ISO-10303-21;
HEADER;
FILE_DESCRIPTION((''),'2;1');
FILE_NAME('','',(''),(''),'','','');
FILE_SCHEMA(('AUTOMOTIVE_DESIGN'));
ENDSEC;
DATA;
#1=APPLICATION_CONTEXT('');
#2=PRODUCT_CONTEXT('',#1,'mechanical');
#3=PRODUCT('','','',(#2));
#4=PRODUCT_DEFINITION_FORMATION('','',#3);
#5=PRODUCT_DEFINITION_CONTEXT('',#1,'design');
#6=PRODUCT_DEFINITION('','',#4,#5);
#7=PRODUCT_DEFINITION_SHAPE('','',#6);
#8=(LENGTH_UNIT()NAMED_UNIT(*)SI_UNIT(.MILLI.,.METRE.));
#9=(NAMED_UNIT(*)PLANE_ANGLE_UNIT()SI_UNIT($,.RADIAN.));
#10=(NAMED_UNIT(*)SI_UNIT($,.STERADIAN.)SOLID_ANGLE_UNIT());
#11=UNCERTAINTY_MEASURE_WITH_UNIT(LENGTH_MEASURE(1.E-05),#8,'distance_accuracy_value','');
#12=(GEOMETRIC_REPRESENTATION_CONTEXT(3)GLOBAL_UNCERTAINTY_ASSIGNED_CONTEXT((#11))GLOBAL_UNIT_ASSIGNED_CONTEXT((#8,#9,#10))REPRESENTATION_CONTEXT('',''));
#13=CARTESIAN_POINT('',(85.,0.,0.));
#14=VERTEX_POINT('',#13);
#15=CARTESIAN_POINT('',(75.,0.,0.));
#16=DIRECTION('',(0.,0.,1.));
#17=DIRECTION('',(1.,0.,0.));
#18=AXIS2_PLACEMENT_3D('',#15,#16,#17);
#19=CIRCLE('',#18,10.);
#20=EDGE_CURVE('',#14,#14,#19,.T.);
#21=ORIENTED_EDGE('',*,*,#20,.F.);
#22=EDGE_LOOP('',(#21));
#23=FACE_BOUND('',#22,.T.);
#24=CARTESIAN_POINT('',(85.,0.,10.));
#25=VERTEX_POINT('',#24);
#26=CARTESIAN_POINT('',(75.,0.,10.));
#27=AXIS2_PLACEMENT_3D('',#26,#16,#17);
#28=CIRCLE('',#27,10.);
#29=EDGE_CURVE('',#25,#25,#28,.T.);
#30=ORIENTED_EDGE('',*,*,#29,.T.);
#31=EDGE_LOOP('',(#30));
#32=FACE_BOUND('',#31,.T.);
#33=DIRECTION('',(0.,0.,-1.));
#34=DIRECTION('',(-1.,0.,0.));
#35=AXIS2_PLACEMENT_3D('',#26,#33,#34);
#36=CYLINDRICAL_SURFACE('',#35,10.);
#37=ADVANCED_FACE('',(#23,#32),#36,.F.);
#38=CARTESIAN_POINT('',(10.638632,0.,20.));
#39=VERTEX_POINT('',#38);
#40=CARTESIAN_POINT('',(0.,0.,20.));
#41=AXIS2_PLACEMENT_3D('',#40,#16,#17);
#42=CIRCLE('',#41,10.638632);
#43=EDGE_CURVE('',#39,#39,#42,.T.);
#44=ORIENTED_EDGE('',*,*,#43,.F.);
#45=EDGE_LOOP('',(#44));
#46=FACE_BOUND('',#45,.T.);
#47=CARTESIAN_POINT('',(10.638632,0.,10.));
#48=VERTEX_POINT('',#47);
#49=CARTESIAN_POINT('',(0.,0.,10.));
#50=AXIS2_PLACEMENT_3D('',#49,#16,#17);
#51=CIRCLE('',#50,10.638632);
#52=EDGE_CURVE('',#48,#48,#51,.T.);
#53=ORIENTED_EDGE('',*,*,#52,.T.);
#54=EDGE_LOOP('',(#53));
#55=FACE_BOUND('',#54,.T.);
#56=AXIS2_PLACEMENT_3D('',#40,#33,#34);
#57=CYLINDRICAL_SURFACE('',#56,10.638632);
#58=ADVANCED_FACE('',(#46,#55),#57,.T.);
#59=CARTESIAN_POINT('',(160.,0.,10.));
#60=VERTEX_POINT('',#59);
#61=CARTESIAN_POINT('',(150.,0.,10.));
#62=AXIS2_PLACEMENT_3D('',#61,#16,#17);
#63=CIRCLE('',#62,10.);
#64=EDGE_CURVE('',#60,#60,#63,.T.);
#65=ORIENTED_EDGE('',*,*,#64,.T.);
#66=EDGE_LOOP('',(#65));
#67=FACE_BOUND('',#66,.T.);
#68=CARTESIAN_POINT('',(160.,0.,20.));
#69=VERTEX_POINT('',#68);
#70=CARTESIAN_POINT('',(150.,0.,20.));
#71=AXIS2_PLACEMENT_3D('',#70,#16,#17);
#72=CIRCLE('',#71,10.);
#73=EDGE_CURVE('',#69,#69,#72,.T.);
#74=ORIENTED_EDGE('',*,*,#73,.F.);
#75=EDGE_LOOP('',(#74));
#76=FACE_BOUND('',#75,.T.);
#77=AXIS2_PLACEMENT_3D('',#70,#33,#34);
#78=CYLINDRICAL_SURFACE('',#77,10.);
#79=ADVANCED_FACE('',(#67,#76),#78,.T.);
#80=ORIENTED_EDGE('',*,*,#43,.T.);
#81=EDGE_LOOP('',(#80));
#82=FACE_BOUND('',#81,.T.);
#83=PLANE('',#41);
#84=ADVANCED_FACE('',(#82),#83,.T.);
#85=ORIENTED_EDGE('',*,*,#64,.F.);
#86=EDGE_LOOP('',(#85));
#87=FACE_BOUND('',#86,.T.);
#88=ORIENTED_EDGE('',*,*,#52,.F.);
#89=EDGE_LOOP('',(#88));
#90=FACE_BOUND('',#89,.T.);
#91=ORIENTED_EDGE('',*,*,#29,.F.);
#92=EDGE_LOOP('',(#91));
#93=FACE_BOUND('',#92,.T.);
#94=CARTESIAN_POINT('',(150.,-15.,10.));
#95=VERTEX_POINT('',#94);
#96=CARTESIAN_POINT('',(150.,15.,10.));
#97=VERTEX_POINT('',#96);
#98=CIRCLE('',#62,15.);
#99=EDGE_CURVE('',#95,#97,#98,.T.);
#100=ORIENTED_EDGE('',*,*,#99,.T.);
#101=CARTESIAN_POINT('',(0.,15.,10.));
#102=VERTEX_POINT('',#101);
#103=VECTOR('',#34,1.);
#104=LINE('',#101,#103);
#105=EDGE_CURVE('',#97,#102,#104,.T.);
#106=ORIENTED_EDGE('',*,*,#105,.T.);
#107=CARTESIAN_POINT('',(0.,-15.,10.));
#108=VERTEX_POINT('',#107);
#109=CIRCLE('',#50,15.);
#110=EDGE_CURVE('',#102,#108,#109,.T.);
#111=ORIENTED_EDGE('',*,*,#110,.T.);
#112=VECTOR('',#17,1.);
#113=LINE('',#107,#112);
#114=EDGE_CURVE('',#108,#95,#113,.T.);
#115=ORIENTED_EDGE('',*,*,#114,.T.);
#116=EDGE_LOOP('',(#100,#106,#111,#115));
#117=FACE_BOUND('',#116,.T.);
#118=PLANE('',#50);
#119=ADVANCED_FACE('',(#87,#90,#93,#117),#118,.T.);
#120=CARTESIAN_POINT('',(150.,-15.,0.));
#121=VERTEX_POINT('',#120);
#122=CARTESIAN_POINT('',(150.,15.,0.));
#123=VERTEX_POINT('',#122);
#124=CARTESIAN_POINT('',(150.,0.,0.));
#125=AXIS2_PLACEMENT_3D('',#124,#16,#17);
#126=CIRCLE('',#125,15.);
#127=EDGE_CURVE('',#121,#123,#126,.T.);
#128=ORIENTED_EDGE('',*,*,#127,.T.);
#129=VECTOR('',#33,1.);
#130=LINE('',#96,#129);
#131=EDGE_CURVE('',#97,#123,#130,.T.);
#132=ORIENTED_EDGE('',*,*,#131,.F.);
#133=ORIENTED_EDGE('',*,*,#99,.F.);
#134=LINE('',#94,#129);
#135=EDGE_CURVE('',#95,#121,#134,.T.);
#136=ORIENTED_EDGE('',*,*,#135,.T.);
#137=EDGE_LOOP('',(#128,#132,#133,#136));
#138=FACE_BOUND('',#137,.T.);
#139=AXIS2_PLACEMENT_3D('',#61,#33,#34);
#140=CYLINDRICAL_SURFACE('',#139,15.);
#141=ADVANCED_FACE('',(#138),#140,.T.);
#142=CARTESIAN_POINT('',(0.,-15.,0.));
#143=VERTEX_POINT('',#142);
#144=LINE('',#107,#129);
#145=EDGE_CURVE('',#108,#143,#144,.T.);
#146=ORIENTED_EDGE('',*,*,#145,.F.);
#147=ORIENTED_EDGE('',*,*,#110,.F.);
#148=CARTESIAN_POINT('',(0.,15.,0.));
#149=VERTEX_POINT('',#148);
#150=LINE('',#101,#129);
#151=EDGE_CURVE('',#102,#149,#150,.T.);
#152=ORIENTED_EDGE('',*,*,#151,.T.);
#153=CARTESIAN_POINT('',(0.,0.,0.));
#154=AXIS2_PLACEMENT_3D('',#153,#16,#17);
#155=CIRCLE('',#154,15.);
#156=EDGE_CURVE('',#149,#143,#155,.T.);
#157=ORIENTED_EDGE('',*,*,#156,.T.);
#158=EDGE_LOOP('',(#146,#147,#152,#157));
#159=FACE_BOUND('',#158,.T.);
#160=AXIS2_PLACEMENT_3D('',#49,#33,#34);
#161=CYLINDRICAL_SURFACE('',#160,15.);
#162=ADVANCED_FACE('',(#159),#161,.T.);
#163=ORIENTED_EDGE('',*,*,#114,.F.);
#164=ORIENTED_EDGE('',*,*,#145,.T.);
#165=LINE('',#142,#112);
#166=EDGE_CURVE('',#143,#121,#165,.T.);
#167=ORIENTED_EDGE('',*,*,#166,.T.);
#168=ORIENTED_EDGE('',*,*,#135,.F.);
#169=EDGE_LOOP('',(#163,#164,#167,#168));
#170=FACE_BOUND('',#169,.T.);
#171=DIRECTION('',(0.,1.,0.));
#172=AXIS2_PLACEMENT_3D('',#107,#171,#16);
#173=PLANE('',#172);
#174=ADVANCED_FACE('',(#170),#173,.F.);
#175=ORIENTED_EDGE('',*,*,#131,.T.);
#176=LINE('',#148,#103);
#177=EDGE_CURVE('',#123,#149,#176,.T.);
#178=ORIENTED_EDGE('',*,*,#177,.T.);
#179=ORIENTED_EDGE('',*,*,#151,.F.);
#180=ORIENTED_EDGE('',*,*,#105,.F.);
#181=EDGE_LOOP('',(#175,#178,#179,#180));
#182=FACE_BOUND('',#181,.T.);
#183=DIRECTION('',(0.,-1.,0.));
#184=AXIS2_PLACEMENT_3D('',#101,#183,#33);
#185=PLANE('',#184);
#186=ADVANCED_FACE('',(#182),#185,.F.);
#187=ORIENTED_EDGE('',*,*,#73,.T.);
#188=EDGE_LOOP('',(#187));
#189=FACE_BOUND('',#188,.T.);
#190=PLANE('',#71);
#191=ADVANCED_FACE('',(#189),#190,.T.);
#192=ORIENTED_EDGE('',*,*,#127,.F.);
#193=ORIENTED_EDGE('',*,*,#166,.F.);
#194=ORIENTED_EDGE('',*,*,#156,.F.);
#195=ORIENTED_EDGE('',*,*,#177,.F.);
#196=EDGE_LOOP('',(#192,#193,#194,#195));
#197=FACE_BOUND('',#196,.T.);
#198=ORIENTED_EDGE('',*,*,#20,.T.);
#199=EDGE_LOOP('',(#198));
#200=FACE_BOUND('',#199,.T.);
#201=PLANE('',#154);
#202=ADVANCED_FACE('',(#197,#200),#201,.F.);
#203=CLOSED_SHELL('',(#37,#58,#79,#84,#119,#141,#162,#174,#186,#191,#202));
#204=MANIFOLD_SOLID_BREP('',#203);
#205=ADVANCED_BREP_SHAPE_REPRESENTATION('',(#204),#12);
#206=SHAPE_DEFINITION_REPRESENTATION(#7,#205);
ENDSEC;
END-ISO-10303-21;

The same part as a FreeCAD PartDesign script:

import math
import FreeCAD as App
import Part
import Sketcher
Q = App.Units.Quantity

doc = App.newDocument("Part")
body = doc.addObject("PartDesign::Body", "Body")

sketch1 = body.newObject("Sketcher::SketchObject", "Sketch")
sketch1.AttachmentSupport = (doc.getObject("XY_Plane"), [""])
sketch1.MapMode = "FlatFace"
sketch1.addGeometry([
    Part.LineSegment(App.Vector(150, 15, 0), App.Vector(0, 15, 0)),
    Part.ArcOfCircle(Part.Circle(App.Vector(0, 0, 0), App.Vector(0, 0, 1), 15), math.radians(90), math.radians(270)),
    Part.LineSegment(App.Vector(0, -15, 0), App.Vector(150, -15, 0)),
    Part.ArcOfCircle(Part.Circle(App.Vector(150, 0, 0), App.Vector(0, 0, 1), 15), math.radians(-90), math.radians(90)),
    Part.Circle(App.Vector(75, 0, 0), App.Vector(0, 0, 1), 10),
], False)
sketch1.addConstraint([
    Sketcher.Constraint("Tangent", 0, 2, 1, 1),
    Sketcher.Constraint("Tangent", 1, 2, 2, 1),
    Sketcher.Constraint("Tangent", 2, 2, 3, 1),
    Sketcher.Constraint("Tangent", 3, 2, 0, 1),
    Sketcher.Constraint("Horizontal", 0),
    Sketcher.Constraint("Horizontal", 2),
    Sketcher.Constraint("Coincident", 1, 3, -1, 1),
    Sketcher.Constraint("PointOnObject", 4, 3, -1),
    Sketcher.Constraint("Diameter", 4, Q("20 mm")),
    Sketcher.Constraint("Radius", 1, Q("15 mm")),
    Sketcher.Constraint("DistanceX", 0, 2, 0, 1, Q("150 mm")),
    Sketcher.Constraint("DistanceX", -1, 1, 4, 3, Q("75 mm")),
])
pad1 = body.newObject("PartDesign::Pad", "Pad")
pad1.Profile = sketch1
pad1.Length = 10

sketch2 = body.newObject("Sketcher::SketchObject", "Sketch001")
sketch2.AttachmentSupport = (doc.getObject("XY_Plane"), [""])
sketch2.MapMode = "FlatFace"
sketch2.AttachmentOffset = App.Placement(App.Vector(0, 0, 10), App.Rotation())
sketch2.addGeometry([
    Part.Circle(App.Vector(0, 0, 0), App.Vector(0, 0, 1), 10.638632),
    Part.Circle(App.Vector(150, 0, 0), App.Vector(0, 0, 1), 10),
], False)
sketch2.addConstraint([
    Sketcher.Constraint("Coincident", 0, 3, -1, 1),
    Sketcher.Constraint("PointOnObject", 1, 3, -1),
    Sketcher.Constraint("Diameter", 1, Q("20 mm")),
    Sketcher.Constraint("DistanceX", -1, 1, 1, 3, Q("150 mm")),
    Sketcher.Constraint("Diameter", 0, Q("21.277265 mm")),
])
pad2 = body.newObject("PartDesign::Pad", "Pad001")
pad2.Profile = sketch2
pad2.Length = 10

doc.recompute()
